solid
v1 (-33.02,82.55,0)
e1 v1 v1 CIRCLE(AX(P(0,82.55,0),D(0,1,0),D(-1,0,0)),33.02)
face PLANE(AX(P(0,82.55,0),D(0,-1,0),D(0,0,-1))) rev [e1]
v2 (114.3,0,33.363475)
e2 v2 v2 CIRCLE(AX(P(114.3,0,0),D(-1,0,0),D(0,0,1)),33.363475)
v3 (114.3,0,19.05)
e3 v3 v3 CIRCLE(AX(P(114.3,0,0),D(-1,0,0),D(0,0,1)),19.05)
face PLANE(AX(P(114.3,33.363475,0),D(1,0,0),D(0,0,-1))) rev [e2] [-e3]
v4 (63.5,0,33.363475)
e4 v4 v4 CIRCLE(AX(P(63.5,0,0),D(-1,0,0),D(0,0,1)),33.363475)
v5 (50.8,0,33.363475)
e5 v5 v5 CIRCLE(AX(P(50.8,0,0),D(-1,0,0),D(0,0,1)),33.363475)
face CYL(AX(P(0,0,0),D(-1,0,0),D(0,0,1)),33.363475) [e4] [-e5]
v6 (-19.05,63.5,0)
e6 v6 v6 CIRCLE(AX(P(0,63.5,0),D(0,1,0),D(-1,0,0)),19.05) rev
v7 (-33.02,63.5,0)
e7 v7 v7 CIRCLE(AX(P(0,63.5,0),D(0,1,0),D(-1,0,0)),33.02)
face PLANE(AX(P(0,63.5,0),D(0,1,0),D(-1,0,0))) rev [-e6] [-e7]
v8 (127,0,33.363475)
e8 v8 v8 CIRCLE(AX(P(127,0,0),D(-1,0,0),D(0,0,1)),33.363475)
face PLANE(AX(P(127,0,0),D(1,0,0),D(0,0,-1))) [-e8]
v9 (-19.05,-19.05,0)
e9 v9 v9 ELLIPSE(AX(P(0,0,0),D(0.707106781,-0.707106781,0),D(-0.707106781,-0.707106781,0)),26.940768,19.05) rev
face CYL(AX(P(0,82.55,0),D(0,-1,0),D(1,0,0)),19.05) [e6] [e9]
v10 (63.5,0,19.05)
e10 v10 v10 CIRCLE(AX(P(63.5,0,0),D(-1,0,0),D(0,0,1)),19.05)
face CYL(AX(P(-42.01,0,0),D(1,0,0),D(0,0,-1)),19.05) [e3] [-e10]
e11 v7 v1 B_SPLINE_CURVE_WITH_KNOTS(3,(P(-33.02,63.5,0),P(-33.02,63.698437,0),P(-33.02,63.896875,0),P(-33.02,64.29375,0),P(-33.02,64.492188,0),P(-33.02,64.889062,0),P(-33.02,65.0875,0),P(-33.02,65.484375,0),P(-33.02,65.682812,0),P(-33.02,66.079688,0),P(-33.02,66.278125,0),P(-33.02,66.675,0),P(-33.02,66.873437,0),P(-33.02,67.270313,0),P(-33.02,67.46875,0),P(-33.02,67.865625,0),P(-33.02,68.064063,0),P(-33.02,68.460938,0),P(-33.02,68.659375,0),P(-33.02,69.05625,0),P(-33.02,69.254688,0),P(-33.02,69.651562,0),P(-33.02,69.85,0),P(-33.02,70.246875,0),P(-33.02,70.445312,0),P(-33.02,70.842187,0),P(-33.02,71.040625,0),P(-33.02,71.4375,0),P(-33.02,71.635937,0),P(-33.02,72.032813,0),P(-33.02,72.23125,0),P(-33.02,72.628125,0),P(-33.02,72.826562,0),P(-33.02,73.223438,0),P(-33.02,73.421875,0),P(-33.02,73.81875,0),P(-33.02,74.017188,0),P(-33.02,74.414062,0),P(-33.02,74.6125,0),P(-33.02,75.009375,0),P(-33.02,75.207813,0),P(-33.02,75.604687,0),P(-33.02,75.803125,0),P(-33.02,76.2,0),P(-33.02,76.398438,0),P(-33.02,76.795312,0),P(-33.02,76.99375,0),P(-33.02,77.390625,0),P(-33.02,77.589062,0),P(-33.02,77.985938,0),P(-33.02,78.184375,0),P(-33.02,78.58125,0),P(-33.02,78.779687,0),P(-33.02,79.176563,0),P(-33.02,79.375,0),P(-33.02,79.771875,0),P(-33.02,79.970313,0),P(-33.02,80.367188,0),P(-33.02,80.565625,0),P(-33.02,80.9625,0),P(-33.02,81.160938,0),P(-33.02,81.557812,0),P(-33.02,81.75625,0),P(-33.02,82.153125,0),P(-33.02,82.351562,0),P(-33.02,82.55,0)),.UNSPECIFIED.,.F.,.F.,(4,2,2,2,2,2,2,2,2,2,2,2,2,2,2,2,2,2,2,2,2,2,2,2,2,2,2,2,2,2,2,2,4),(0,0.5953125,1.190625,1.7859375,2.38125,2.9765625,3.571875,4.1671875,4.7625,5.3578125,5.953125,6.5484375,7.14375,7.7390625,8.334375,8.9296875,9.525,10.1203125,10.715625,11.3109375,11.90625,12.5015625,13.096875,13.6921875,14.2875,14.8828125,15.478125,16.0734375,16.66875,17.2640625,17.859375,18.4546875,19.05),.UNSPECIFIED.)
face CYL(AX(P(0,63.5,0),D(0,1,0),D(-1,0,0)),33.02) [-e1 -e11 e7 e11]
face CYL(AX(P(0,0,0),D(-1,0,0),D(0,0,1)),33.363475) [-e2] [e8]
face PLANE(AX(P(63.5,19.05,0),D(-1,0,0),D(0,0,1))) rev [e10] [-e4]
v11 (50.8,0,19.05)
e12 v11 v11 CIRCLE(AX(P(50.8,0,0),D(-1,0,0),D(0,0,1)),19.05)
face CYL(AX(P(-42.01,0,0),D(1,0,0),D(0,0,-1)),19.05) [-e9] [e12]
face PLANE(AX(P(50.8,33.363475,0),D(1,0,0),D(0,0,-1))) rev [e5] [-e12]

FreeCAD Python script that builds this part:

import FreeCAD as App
import Part
import Sketcher
from FreeCAD import Vector
Q = App.Units.Quantity

doc = App.newDocument("Part")
body = doc.addObject("PartDesign::Body", "Body")

# Sketch on YZ plane
sketch1 = body.newObject("Sketcher::SketchObject", "Sketch")
sketch1.AttachmentSupport = (doc.getObject("YZ_Plane"), [""])
sketch1.MapMode = "FlatFace"
sketch1.AttachmentOffset = App.Placement(Vector(0, 0, 5 * 25.4), App.Rotation())
sketch1.addGeometry(Part.Circle(Vector(0, 0, 0), Vector(0, 0, 1), 19.05), False)
sketch1.addConstraint(Sketcher.Constraint("Coincident", 0, 3, -1, 1))
sketch1.addConstraint(Sketcher.Constraint("Diameter", 0, Q("1.5 in")))

# Sketch on XY plane
sketch2 = body.newObject("Sketcher::SketchObject", "Sketch001")
sketch2.AttachmentSupport = (doc.getObject("XY_Plane"), [""])
sketch2.MapMode = "FlatFace"
sketch2.addGeometry(Part.LineSegment(Vector(0, 82.55, 0), Vector(0, 0, 0)), False)
sketch2.addGeometry(Part.LineSegment(Vector(0, 0, 0), Vector(127, 0, 0)), False)
sketch2.addConstraint(Sketcher.Constraint("Coincident", 0, 2, 1, 1))
sketch2.addConstraint(Sketcher.Constraint("Vertical", 0))
sketch2.addConstraint(Sketcher.Constraint("Horizontal", 1))
sketch2.addConstraint(Sketcher.Constraint("Coincident", 0, 2, -1, 1))
sketch2.addConstraint(Sketcher.Constraint("DistanceX", 1, 1, 1, 2, Q("5 in")))
sketch2.addConstraint(Sketcher.Constraint("DistanceY", 0, 2, 0, 1, Q("3.25 in")))
doc.recompute()

additivepipe = body.newObject("PartDesign::AdditivePipe", "AdditivePipe")
additivepipe.Profile = sketch1
additivepipe.Spine = (sketch2, ["Edge1", "Edge2"])
additivepipe.Transition = "Right corner"

# Sketch on XZ plane
sketch3 = body.newObject("Sketcher::SketchObject", "Sketch002")
sketch3.AttachmentSupport = (doc.getObject("XZ_Plane"), [""])
sketch3.MapMode = "FlatFace"
sketch3.AttachmentOffset = App.Placement(Vector(0, 0, -3.25 * 25.4), App.Rotation())
sketch3.addGeometry(Part.Circle(Vector(0, 0, 0), Vector(0, 0, 1), 33.02), False)
sketch3.addConstraint(Sketcher.Constraint("Coincident", 0, 3, -1, 1))
sketch3.addConstraint(Sketcher.Constraint("Diameter", 0, Q("2.6 in")))
pad1 = body.newObject("PartDesign::Pad", "Pad")
pad1.Profile = sketch3
pad1.Length = Q("0.75 in")

# Sketch on XY plane
sketch4 = body.newObject("Sketcher::SketchObject", "Sketch003")
sketch4.AttachmentSupport = (doc.getObject("XY_Plane"), [""])
sketch4.MapMode = "FlatFace"
sketch4.addGeometry(Part.LineSegment(Vector(114.3, 33.363475, 0), Vector(114.3, 19.05, 0)), False)
sketch4.addGeometry(Part.LineSegment(Vector(114.3, 19.05, 0), Vector(127, 19.05, 0)), False)
sketch4.addGeometry(Part.LineSegment(Vector(127, 19.05, 0), Vector(127, 33.363475, 0)), False)
sketch4.addGeometry(Part.LineSegment(Vector(127, 33.363475, 0), Vector(114.3, 33.363475, 0)), False)
sketch4.addGeometry(Part.LineSegment(Vector(50.8, 33.363475, 0), Vector(50.8, 19.05, 0)), False)
sketch4.addGeometry(Part.LineSegment(Vector(50.8, 19.05, 0), Vector(63.5, 19.05, 0)), False)
sketch4.addGeometry(Part.LineSegment(Vector(63.5, 19.05, 0), Vector(63.5, 33.363475, 0)), False)
sketch4.addGeometry(Part.LineSegment(Vector(63.5, 33.363475, 0), Vector(50.8, 33.363475, 0)), False)
sketch4.addConstraint(Sketcher.Constraint("Coincident", 0, 2, 1, 1))
sketch4.addConstraint(Sketcher.Constraint("Coincident", 1, 2, 2, 1))
sketch4.addConstraint(Sketcher.Constraint("Coincident", 2, 2, 3, 1))
sketch4.addConstraint(Sketcher.Constraint("Coincident", 3, 2, 0, 1))
sketch4.addConstraint(Sketcher.Constraint("Coincident", 4, 2, 5, 1))
sketch4.addConstraint(Sketcher.Constraint("Coincident", 5, 2, 6, 1))
sketch4.addConstraint(Sketcher.Constraint("Coincident", 6, 2, 7, 1))
sketch4.addConstraint(Sketcher.Constraint("Coincident", 7, 2, 4, 1))
sketch4.addConstraint(Sketcher.Constraint("Vertical", 0))
sketch4.addConstraint(Sketcher.Constraint("Horizontal", 1))
sketch4.addConstraint(Sketcher.Constraint("Vertical", 2))
sketch4.addConstraint(Sketcher.Constraint("Horizontal", 3))
sketch4.addConstraint(Sketcher.Constraint("Vertical", 4))
sketch4.addConstraint(Sketcher.Constraint("Horizontal", 5))
sketch4.addConstraint(Sketcher.Constraint("Vertical", 6))
sketch4.addConstraint(Sketcher.Constraint("Horizontal", 7))
sketch4.addConstraint(Sketcher.Constraint("Horizontal", 1, 2, 4, 2))
sketch4.addConstraint(Sketcher.Constraint("Horizontal", 3, 2, 6, 2))
sketch4.addConstraint(Sketcher.Constraint("Equal", 3, 5))
sketch4.addConstraint(Sketcher.Constraint("DistanceX", 1, 1, 1, 2, Q("0.5 in")))
sketch4.addConstraint(Sketcher.Constraint("DistanceX", -1, 1, 1, 2, Q("5 in")))
sketch4.addConstraint(Sketcher.Constraint("DistanceX", -1, 1, 4, 2, Q("2 in")))
sketch4.addConstraint(Sketcher.Constraint("DistanceY", -1, 1, 0, 2, Q("0.75 in")))
sketch4.addConstraint(Sketcher.Constraint("DistanceY", 0, 2, 0, 1, Q("14.313475 mm")))
revolution = body.newObject("PartDesign::Revolution", "Revolution")
revolution.Profile = sketch4
revolution.ReferenceAxis = (sketch4, ["H_Axis"])
revolution.Angle = 360

doc.recompute()
